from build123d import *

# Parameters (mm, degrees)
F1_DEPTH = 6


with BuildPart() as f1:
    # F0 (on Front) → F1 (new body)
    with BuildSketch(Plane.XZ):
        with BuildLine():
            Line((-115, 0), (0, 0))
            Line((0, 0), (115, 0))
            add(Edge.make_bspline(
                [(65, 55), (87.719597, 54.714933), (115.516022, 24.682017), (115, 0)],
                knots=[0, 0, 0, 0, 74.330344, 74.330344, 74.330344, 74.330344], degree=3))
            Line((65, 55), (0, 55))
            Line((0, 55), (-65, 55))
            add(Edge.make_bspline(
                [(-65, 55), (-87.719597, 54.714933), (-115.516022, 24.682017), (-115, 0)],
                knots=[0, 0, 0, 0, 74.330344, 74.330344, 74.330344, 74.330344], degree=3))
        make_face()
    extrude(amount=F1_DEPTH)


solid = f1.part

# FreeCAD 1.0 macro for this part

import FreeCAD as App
import Part
import Sketcher

doc = App.newDocument("Part")
body = doc.addObject("PartDesign::Body", "Body")

# Sketch on XZ plane
sketch1 = body.newObject("Sketcher::SketchObject", "Sketch")
sketch1.AttachmentSupport = (doc.getObject("XZ_Plane"), [""])
sketch1.MapMode = "FlatFace"
sketch1.addGeometry([
    Part.LineSegment(App.Vector(-115, 0, 0), App.Vector(115, 0, 0)),
    Part.BSplineCurve([App.Vector(65, 55, 0), App.Vector(87.719597, 54.714933, 0), App.Vector(115.516022, 24.682017, 0), App.Vector(115, 0, 0)], [4, 4], [0, 74.330344], False, 3, [1, 1, 1, 1], False),
    Part.LineSegment(App.Vector(65, 55, 0), App.Vector(-65, 55, 0)),
    Part.BSplineCurve([App.Vector(-65, 55, 0), App.Vector(-87.719597, 54.714933, 0), App.Vector(-115.516022, 24.682017, 0), App.Vector(-115, 0, 0)], [4, 4], [0, 74.330344], False, 3, [1, 1, 1, 1], False),
], False)
sketch1.addConstraint([
    Sketcher.Constraint("Block", 1),
    Sketcher.Constraint("Block", 3),
    Sketcher.Constraint("Coincident", 0, 2, 1, 2),
    Sketcher.Constraint("Coincident", 1, 1, 2, 1),
    Sketcher.Constraint("Coincident", 2, 2, 3, 1),
    Sketcher.Constraint("Coincident", 3, 2, 0, 1),
])
pad1 = body.newObject("PartDesign::Pad", "Pad")
pad1.Profile = sketch1
pad1.Length = 6

doc.recompute()
